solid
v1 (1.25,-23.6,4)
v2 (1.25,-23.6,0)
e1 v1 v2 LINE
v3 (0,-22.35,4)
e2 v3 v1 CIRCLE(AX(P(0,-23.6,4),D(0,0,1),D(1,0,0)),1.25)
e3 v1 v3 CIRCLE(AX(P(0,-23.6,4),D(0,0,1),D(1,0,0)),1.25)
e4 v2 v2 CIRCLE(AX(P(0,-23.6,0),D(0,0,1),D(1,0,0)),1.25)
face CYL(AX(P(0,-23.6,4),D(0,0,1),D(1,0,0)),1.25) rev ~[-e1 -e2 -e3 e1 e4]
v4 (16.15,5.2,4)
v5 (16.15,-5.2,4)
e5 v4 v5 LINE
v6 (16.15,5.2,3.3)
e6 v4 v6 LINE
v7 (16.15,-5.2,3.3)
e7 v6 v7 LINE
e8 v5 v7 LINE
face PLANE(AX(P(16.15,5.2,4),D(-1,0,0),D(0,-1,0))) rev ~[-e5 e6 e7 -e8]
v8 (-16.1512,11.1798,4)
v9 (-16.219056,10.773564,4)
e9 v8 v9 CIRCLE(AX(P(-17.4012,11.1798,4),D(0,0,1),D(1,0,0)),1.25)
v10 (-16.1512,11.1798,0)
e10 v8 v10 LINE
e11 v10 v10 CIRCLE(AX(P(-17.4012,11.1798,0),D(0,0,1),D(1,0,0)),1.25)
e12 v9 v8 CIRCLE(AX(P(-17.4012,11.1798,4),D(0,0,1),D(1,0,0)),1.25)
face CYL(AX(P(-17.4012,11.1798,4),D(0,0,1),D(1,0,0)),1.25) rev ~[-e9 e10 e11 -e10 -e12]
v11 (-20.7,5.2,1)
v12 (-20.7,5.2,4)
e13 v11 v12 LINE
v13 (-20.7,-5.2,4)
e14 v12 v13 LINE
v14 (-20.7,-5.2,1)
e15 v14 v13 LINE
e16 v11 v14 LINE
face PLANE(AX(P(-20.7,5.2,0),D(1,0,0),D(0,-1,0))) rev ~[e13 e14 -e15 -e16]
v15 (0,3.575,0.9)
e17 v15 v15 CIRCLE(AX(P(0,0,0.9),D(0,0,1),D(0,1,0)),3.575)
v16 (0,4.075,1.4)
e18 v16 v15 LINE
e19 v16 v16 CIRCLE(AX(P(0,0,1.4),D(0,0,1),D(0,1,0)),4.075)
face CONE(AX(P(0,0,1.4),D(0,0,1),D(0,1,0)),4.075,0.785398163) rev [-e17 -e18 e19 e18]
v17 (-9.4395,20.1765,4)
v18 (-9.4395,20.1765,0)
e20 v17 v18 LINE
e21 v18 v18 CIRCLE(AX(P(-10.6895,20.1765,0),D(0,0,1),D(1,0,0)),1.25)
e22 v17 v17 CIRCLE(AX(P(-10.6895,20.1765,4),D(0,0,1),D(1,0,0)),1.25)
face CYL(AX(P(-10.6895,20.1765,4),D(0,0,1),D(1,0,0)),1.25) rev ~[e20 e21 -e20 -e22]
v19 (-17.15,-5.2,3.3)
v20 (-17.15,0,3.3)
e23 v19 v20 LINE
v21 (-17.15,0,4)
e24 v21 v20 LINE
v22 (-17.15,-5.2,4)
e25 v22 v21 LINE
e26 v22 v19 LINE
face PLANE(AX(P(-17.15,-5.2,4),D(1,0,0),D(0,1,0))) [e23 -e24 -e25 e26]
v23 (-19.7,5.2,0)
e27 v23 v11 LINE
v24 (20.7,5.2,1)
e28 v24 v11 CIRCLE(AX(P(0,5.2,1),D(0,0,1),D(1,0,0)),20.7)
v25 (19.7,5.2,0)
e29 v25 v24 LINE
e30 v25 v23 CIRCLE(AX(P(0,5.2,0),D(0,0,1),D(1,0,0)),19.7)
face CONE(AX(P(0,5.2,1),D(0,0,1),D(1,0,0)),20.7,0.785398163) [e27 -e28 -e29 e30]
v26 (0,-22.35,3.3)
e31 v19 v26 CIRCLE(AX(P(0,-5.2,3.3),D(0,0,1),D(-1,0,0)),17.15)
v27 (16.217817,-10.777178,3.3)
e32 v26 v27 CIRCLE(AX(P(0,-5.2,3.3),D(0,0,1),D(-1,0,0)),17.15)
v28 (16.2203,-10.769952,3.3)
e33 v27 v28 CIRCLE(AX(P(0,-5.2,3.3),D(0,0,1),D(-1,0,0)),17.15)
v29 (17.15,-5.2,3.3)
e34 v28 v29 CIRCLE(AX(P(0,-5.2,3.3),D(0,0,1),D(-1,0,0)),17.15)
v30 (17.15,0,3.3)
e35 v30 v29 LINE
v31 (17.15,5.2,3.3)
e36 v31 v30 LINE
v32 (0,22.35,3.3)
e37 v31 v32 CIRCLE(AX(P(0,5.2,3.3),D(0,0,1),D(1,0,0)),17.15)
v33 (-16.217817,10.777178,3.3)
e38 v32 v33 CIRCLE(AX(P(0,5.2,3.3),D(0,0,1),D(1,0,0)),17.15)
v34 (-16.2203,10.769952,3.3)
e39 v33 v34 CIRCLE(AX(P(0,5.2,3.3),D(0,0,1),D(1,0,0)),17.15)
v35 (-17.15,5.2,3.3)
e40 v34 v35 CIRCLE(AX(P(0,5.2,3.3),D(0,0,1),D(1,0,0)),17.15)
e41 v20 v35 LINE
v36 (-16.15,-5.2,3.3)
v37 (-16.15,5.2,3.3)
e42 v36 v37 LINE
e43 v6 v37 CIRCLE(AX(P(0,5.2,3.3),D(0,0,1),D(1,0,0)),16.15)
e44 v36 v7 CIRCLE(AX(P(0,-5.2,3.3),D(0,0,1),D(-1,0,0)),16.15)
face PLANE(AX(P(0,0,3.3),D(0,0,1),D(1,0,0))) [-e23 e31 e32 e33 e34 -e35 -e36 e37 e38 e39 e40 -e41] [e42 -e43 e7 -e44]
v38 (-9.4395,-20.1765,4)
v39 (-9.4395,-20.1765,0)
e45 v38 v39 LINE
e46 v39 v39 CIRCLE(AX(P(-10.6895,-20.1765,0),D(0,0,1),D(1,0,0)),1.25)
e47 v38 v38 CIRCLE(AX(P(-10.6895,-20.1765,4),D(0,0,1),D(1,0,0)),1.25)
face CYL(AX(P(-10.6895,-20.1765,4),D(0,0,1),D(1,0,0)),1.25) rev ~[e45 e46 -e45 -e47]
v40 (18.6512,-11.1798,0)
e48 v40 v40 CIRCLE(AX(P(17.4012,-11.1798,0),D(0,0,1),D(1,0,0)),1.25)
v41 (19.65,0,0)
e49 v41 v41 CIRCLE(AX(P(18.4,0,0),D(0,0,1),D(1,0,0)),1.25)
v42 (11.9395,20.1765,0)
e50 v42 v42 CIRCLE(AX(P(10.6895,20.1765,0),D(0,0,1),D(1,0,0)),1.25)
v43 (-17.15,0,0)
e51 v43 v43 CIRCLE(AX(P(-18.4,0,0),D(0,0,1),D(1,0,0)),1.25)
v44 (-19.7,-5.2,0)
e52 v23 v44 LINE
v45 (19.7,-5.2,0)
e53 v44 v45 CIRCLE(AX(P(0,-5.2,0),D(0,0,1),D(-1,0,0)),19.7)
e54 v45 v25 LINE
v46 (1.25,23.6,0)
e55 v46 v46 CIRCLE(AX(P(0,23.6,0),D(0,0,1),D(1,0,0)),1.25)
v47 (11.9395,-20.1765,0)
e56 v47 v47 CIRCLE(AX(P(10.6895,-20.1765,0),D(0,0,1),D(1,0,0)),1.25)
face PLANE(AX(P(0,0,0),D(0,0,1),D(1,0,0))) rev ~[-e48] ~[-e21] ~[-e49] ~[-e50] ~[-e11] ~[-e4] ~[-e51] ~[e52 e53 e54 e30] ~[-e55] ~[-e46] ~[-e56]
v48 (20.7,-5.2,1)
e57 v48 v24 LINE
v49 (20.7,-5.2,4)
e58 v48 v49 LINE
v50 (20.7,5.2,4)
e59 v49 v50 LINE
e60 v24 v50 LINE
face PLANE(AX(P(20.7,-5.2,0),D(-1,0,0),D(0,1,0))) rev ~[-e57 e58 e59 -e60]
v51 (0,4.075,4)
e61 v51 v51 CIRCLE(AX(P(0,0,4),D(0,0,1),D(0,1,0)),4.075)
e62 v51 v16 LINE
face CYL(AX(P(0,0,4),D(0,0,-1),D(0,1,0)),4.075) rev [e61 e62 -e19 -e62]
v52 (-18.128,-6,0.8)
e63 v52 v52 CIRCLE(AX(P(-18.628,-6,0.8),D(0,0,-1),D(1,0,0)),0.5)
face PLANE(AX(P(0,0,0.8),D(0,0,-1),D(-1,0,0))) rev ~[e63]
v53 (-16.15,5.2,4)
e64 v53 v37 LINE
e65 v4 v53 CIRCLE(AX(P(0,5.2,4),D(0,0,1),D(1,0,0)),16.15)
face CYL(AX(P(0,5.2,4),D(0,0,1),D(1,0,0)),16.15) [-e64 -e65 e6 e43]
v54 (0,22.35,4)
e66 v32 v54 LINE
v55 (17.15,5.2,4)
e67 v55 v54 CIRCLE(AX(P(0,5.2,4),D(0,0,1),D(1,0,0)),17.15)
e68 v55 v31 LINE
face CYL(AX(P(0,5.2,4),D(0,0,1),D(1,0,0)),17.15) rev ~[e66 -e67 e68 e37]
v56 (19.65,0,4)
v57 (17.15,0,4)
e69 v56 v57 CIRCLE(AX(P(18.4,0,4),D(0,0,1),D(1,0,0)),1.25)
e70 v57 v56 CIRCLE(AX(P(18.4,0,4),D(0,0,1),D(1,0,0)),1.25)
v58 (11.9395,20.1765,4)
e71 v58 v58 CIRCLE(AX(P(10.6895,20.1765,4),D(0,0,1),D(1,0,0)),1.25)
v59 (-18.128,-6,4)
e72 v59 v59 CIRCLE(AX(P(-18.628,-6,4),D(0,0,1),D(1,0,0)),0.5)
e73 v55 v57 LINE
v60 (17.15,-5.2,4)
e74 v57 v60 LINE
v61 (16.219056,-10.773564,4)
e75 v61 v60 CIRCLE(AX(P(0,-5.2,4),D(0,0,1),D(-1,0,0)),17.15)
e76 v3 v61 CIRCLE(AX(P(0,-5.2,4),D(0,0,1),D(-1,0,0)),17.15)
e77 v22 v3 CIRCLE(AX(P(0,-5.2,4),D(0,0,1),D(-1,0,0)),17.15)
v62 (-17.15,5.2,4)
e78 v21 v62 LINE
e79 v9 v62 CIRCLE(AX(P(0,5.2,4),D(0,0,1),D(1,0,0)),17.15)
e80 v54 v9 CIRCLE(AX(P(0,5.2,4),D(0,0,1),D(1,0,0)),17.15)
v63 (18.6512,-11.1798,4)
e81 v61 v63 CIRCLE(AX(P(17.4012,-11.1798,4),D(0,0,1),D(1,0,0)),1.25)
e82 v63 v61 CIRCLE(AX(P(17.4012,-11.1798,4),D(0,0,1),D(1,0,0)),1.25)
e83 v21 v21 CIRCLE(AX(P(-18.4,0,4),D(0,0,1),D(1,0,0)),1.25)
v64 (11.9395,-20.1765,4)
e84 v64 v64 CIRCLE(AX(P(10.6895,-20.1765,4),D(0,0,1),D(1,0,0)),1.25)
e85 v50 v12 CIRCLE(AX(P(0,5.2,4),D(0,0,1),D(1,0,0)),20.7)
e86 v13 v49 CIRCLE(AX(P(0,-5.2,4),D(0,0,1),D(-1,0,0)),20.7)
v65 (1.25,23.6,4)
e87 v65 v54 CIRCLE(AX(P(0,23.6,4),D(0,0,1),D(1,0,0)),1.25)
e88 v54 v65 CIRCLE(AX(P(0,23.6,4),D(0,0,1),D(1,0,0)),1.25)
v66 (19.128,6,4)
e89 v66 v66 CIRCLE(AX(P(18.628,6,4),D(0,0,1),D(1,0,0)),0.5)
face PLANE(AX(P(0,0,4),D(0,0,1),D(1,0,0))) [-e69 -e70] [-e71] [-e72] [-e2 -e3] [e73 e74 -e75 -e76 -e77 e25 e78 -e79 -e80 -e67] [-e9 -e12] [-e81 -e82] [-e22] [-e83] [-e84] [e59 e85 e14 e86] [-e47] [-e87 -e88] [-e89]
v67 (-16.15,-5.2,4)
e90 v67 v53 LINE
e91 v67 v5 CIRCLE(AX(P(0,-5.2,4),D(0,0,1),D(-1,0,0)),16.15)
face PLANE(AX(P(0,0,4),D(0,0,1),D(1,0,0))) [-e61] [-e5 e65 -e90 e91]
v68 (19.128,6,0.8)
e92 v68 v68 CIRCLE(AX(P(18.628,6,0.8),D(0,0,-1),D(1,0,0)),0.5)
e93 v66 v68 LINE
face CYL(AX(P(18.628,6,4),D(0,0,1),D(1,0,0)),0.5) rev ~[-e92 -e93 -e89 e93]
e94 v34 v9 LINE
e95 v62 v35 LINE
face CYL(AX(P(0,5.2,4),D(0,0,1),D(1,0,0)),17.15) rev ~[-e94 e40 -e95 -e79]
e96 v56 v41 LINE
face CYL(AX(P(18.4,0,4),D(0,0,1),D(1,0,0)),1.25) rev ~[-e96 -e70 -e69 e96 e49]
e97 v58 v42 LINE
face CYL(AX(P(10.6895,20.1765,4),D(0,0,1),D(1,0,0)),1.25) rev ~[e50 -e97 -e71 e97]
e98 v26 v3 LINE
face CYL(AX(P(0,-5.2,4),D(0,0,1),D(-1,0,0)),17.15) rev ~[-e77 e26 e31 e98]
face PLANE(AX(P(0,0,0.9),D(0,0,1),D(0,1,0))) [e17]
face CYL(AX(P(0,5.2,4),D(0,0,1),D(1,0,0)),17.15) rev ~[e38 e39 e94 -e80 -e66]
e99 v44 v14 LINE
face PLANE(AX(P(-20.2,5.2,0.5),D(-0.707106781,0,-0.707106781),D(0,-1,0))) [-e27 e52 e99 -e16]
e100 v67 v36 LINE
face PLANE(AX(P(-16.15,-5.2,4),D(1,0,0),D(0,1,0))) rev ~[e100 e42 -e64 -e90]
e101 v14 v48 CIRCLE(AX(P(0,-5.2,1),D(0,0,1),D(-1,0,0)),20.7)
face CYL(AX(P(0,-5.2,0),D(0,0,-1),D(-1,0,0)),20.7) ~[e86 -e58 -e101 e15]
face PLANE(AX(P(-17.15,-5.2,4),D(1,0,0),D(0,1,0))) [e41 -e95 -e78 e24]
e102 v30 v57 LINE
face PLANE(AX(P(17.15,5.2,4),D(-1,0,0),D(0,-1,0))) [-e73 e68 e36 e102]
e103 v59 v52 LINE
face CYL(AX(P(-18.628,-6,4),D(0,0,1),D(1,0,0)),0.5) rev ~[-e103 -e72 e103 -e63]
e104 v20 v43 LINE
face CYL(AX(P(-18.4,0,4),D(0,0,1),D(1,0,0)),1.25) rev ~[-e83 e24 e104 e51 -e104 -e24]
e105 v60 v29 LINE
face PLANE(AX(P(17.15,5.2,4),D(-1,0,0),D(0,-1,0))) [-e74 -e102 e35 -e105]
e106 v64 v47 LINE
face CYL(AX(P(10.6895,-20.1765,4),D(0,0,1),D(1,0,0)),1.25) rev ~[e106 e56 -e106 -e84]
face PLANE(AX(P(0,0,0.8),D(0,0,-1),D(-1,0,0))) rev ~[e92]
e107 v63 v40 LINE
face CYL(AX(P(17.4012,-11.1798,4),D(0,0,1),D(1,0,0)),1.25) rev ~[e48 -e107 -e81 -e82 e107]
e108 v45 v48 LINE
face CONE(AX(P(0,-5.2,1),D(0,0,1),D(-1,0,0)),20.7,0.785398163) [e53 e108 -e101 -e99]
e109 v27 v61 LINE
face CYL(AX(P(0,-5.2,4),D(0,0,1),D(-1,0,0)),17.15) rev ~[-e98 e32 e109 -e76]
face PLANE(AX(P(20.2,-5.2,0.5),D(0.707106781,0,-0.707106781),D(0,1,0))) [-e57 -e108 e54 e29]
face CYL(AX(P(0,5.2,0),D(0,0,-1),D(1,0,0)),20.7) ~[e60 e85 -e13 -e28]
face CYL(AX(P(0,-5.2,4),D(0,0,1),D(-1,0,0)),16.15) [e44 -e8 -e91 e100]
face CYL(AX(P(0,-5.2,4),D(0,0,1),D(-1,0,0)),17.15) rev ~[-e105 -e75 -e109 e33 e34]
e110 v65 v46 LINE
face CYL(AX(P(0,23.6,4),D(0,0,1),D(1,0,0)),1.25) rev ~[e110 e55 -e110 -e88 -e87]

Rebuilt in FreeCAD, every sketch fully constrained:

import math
import FreeCAD as App
import Part
import Sketcher

V = App.Vector


def edges_at(feature, points):
    """Names of the edges that pass closest to the given points."""
    edges = feature.Shape.Edges
    near = lambda p: min(range(len(edges)), key=lambda i: edges[i].distToShape(Part.Vertex(*p))[0])
    return sorted({f"Edge{near(p) + 1}" for p in points})


def add_polygon(sketch, points):
    """Adds a closed chain of lines whose ends are joined by coincident constraints."""
    first, n = sketch.GeometryCount, len(points)
    for a, b in zip(points, points[1:] + points[:1]):
        sketch.addGeometry(Part.LineSegment(App.Vector(*a, 0), App.Vector(*b, 0)), False)
    for i in range(n):
        sketch.addConstraint(Sketcher.Constraint("Coincident", first + i, 2, first + (i + 1) % n, 1))

doc = App.newDocument("Part")
body = doc.addObject("PartDesign::Body", "Body")

sketch1 = body.newObject("Sketcher::SketchObject", "Sketch")
sketch1.AttachmentSupport = (doc.getObject("XY_Plane"), [""])
sketch1.MapMode = "FlatFace"
sketch1.addGeometry(Part.ArcOfCircle(Part.Circle(V(0, 5, 0), V(0, 0, 1), 21), math.radians(0), math.radians(180)), False)
sketch1.addGeometry(Part.LineSegment(V(-21, 5, 0), V(-21, -5, 0)), False)
sketch1.addGeometry(Part.ArcOfCircle(Part.Circle(V(0, -5, 0), V(0, 0, 1), 21), math.radians(180), math.radians(360)), False)
sketch1.addGeometry(Part.LineSegment(V(21, -5, 0), V(21, 5, 0)), False)
sketch1.addConstraint(Sketcher.Constraint("Tangent", 0, 2, 1, 1))
sketch1.addConstraint(Sketcher.Constraint("Tangent", 1, 2, 2, 1))
sketch1.addConstraint(Sketcher.Constraint("Tangent", 2, 2, 3, 1))
sketch1.addConstraint(Sketcher.Constraint("Tangent", 3, 2, 0, 1))
sketch1.addConstraint(Sketcher.Constraint("Vertical", 1))
sketch1.addConstraint(Sketcher.Constraint("Vertical", 3))
sketch1.addConstraint(Sketcher.Constraint("Symmetric", 0, 3, 2, 3, -1, 1))
sketch1.addConstraint(Sketcher.Constraint("Radius", 0, 20.7))
sketch1.addConstraint(Sketcher.Constraint("DistanceY", 1, 2, 1, 1, 10.4))
pad1 = body.newObject("PartDesign::Pad", "Pad")
pad1.Profile = sketch1
pad1.Length = 4

sketch2 = body.newObject("Sketcher::SketchObject", "Sketch001")
sketch2.AttachmentSupport = (doc.getObject("XY_Plane"), [""])
sketch2.MapMode = "FlatFace"
sketch2.AttachmentOffset = App.Placement(V(0, 0, 4), App.Rotation())
sketch2.addGeometry(Part.Circle(V(-18.4, 0, 0), V(0, 0, 1), 1.2), False)
sketch2.addGeometry(Part.Circle(V(0, 23.6, 0), V(0, 0, 1), 1.2), False)
sketch2.addGeometry(Part.Circle(V(-10.7, 20.2, 0), V(0, 0, 1), 1.2), False)
sketch2.addGeometry(Part.Circle(V(-17.4, 11.2, 0), V(0, 0, 1), 1.2), False)
sketch2.addGeometry(Part.Circle(V(18.4, 0, 0), V(0, 0, 1), 1.2), False)
sketch2.addGeometry(Part.Circle(V(10.7, 20.2, 0), V(0, 0, 1), 1.2), False)
sketch2.addGeometry(Part.Circle(V(0, -23.6, 0), V(0, 0, 1), 1.2), False)
sketch2.addGeometry(Part.Circle(V(-10.7, -20.2, 0), V(0, 0, 1), 1.2), False)
sketch2.addGeometry(Part.Circle(V(10.7, -20.2, 0), V(0, 0, 1), 1.2), False)
sketch2.addGeometry(Part.Circle(V(17.4, -11.2, 0), V(0, 0, 1), 1.2), False)
sketch2.addGeometry(Part.Circle(V(-18.6, -6, 0), V(0, 0, 1), 0.5), False)
sketch2.addGeometry(Part.Circle(V(18.6, 6, 0), V(0, 0, 1), 0.5), False)
sketch2.addConstraint(Sketcher.Constraint("Equal", 0, 1))
sketch2.addConstraint(Sketcher.Constraint("Equal", 1, 2))
sketch2.addConstraint(Sketcher.Constraint("Equal", 2, 3))
sketch2.addConstraint(Sketcher.Constraint("Equal", 3, 4))
sketch2.addConstraint(Sketcher.Constraint("Equal", 4, 5))
sketch2.addConstraint(Sketcher.Constraint("Equal", 5, 6))
sketch2.addConstraint(Sketcher.Constraint("Equal", 6, 7))
sketch2.addConstraint(Sketcher.Constraint("Equal", 7, 8))
sketch2.addConstraint(Sketcher.Constraint("Equal", 8, 9))
sketch2.addConstraint(Sketcher.Constraint("Equal", 10, 11))
sketch2.addConstraint(Sketcher.Constraint("Symmetric", 0, 3, 4, 3, -1, 1))
sketch2.addConstraint(Sketcher.Constraint("Symmetric", 1, 3, 6, 3, -1, 1))
sketch2.addConstraint(Sketcher.Constraint("Symmetric", 5, 3, 7, 3, -1, 1))
sketch2.addConstraint(Sketcher.Constraint("Symmetric", 2, 3, 8, 3, -1, 1))
sketch2.addConstraint(Sketcher.Constraint("Symmetric", 3, 3, 9, 3, -1, 1))
sketch2.addConstraint(Sketcher.Constraint("Symmetric", 10, 3, 11, 3, -1, 1))
sketch2.addConstraint(Sketcher.Constraint("Symmetric", 2, 3, 5, 3, -2))
sketch2.addConstraint(Sketcher.Constraint("PointOnObject", 0, 3, -1))
sketch2.addConstraint(Sketcher.Constraint("PointOnObject", 1, 3, -2))
sketch2.addConstraint(Sketcher.Constraint("Diameter", 10, 1.0))
sketch2.addConstraint(Sketcher.Constraint("Diameter", 0, 2.5))
sketch2.addConstraint(Sketcher.Constraint("DistanceY", 10, 3, -1, 1, 6.0))
sketch2.addConstraint(Sketcher.Constraint("DistanceX", 10, 3, 0, 3, 0.228))
sketch2.addConstraint(Sketcher.Constraint("DistanceX", 0, 3, -1, 1, 18.4))
sketch2.addConstraint(Sketcher.Constraint("DistanceY", -1, 1, 1, 3, 23.6))
sketch2.addConstraint(Sketcher.Constraint("DistanceX", 2, 3, 5, 3, 21.379))
sketch2.addConstraint(Sketcher.Constraint("DistanceY", 7, 3, 2, 3, 40.353))
sketch2.addConstraint(Sketcher.Constraint("DistanceX", 3, 3, -1, 1, 17.4012))
sketch2.addConstraint(Sketcher.Constraint("DistanceY", -1, 1, 3, 3, 11.1798))
pocket1 = body.newObject("PartDesign::Pocket", "Pocket")
pocket1.Profile = sketch2
pocket1.Type = "ThroughAll"

sketch3 = body.newObject("Sketcher::SketchObject", "Sketch002")
sketch3.AttachmentSupport = (doc.getObject("XY_Plane"), [""])
sketch3.MapMode = "FlatFace"
sketch3.AttachmentOffset = App.Placement(V(0, 0, 4), App.Rotation())
sketch3.addGeometry(Part.LineSegment(V(17, -5, 0), V(17, 5, 0)), False)
sketch3.addGeometry(Part.ArcOfCircle(Part.Circle(V(0, 5, 0), V(0, 0, 1), 17), math.radians(0), math.radians(180)), False)
sketch3.addGeometry(Part.LineSegment(V(-17, 5, 0), V(-17, -5, 0)), False)
sketch3.addGeometry(Part.ArcOfCircle(Part.Circle(V(0, -5, 0), V(0, 0, 1), 17), math.radians(180), math.radians(360)), False)
sketch3.addGeometry(Part.ArcOfCircle(Part.Circle(V(0, 5, 0), V(0, 0, 1), 16), math.radians(0), math.radians(180)), False)
sketch3.addGeometry(Part.LineSegment(V(16, 5, 0), V(16, -5, 0)), False)
sketch3.addGeometry(Part.ArcOfCircle(Part.Circle(V(0, -5, 0), V(0, 0, 1), 16), math.radians(180), math.radians(360)), False)
sketch3.addGeometry(Part.LineSegment(V(-16, -5, 0), V(-16, 5, 0)), False)
sketch3.addConstraint(Sketcher.Constraint("Tangent", 0, 2, 1, 1))
sketch3.addConstraint(Sketcher.Constraint("Tangent", 1, 2, 2, 1))
sketch3.addConstraint(Sketcher.Constraint("Tangent", 2, 2, 3, 1))
sketch3.addConstraint(Sketcher.Constraint("Tangent", 3, 2, 0, 1))
sketch3.addConstraint(Sketcher.Constraint("Tangent", 4, 1, 5, 1))
sketch3.addConstraint(Sketcher.Constraint("Tangent", 5, 2, 6, 2))
sketch3.addConstraint(Sketcher.Constraint("Tangent", 6, 1, 7, 1))
sketch3.addConstraint(Sketcher.Constraint("Tangent", 7, 2, 4, 2))
sketch3.addConstraint(Sketcher.Constraint("Vertical", 0))
sketch3.addConstraint(Sketcher.Constraint("Vertical", 2))
sketch3.addConstraint(Sketcher.Constraint("Vertical", 5))
sketch3.addConstraint(Sketcher.Constraint("Vertical", 7))
sketch3.addConstraint(Sketcher.Constraint("Coincident", 4, 3, 1, 3))
sketch3.addConstraint(Sketcher.Constraint("Symmetric", 1, 3, 3, 3, -1, 1))
sketch3.addConstraint(Sketcher.Constraint("Horizontal", 6, 3, 2, 2))
sketch3.addConstraint(Sketcher.Constraint("DistanceX", 4, 1, 0, 2, 1.0))
sketch3.addConstraint(Sketcher.Constraint("Radius", 1, 17.15))
sketch3.addConstraint(Sketcher.Constraint("DistanceY", 0, 1, 0, 2, 10.4))
pocket2 = body.newObject("PartDesign::Pocket", "Pocket001")
pocket2.Profile = sketch3
pocket2.Length = 0.7
doc.recompute()

chamfer = body.newObject("PartDesign::Chamfer", "Chamfer")
chamfer.Base = (pocket2, edges_at(pocket2, [
    (0, -25.9, 0),
    (20.7, 0, 0),
    (0, 25.9, 0),
    (-20.7, 0, 0),
]))
chamfer.Size = 1

sketch4 = body.newObject("Sketcher::SketchObject", "Sketch003")
sketch4.AttachmentSupport = (doc.getObject("YZ_Plane"), [""])
sketch4.MapMode = "FlatFace"
add_polygon(sketch4, [(4.1, 4), (0, 4), (0, 0.9), (3.6, 0.9), (4.1, 1.4)])
sketch4.addConstraint(Sketcher.Constraint("Horizontal", 0))
sketch4.addConstraint(Sketcher.Constraint("Vertical", 1))
sketch4.addConstraint(Sketcher.Constraint("Horizontal", 2))
sketch4.addConstraint(Sketcher.Constraint("Vertical", 4))
sketch4.addConstraint(Sketcher.Constraint("PointOnObject", 0, 2, -2))
sketch4.addConstraint(Sketcher.Constraint("DistanceY", 4, 1, 4, 2, 2.6))
sketch4.addConstraint(Sketcher.Constraint("DistanceY", -1, 1, 1, 2, 0.9))
sketch4.addConstraint(Sketcher.Constraint("DistanceX", 2, 2, 3, 2, 0.5))
sketch4.addConstraint(Sketcher.Constraint("DistanceY", 2, 2, 3, 2, 0.5))
sketch4.addConstraint(Sketcher.Constraint("DistanceX", 0, 2, 0, 1, 4.075))
groove = body.newObject("PartDesign::Groove", "Groove")
groove.Profile = sketch4
groove.ReferenceAxis = (sketch4, ["V_Axis"])
groove.Angle = 360

sketch5 = body.newObject("Sketcher::SketchObject", "Sketch004")
sketch5.AttachmentSupport = (doc.getObject("XY_Plane"), [""])
sketch5.MapMode = "FlatFace"
sketch5.addGeometry(Part.Circle(V(18.6, 6, 0), V(0, 0, 1), 0.5), False)
sketch5.addGeometry(Part.Circle(V(-18.6, -6, 0), V(0, 0, 1), 0.5), False)
sketch5.addConstraint(Sketcher.Constraint("Equal", 0, 1))
sketch5.addConstraint(Sketcher.Constraint("Symmetric", 0, 3, 1, 3, -1, 1))
sketch5.addConstraint(Sketcher.Constraint("Diameter", 0, 1.0))
sketch5.addConstraint(Sketcher.Constraint("DistanceY", -1, 1, 0, 3, 6.0))
sketch5.addConstraint(Sketcher.Constraint("DistanceX", -1, 1, 0, 3, 18.628))
pad2 = body.newObject("PartDesign::Pad", "Pad001")
pad2.Profile = sketch5
pad2.Length = 0.8

doc.recompute()
